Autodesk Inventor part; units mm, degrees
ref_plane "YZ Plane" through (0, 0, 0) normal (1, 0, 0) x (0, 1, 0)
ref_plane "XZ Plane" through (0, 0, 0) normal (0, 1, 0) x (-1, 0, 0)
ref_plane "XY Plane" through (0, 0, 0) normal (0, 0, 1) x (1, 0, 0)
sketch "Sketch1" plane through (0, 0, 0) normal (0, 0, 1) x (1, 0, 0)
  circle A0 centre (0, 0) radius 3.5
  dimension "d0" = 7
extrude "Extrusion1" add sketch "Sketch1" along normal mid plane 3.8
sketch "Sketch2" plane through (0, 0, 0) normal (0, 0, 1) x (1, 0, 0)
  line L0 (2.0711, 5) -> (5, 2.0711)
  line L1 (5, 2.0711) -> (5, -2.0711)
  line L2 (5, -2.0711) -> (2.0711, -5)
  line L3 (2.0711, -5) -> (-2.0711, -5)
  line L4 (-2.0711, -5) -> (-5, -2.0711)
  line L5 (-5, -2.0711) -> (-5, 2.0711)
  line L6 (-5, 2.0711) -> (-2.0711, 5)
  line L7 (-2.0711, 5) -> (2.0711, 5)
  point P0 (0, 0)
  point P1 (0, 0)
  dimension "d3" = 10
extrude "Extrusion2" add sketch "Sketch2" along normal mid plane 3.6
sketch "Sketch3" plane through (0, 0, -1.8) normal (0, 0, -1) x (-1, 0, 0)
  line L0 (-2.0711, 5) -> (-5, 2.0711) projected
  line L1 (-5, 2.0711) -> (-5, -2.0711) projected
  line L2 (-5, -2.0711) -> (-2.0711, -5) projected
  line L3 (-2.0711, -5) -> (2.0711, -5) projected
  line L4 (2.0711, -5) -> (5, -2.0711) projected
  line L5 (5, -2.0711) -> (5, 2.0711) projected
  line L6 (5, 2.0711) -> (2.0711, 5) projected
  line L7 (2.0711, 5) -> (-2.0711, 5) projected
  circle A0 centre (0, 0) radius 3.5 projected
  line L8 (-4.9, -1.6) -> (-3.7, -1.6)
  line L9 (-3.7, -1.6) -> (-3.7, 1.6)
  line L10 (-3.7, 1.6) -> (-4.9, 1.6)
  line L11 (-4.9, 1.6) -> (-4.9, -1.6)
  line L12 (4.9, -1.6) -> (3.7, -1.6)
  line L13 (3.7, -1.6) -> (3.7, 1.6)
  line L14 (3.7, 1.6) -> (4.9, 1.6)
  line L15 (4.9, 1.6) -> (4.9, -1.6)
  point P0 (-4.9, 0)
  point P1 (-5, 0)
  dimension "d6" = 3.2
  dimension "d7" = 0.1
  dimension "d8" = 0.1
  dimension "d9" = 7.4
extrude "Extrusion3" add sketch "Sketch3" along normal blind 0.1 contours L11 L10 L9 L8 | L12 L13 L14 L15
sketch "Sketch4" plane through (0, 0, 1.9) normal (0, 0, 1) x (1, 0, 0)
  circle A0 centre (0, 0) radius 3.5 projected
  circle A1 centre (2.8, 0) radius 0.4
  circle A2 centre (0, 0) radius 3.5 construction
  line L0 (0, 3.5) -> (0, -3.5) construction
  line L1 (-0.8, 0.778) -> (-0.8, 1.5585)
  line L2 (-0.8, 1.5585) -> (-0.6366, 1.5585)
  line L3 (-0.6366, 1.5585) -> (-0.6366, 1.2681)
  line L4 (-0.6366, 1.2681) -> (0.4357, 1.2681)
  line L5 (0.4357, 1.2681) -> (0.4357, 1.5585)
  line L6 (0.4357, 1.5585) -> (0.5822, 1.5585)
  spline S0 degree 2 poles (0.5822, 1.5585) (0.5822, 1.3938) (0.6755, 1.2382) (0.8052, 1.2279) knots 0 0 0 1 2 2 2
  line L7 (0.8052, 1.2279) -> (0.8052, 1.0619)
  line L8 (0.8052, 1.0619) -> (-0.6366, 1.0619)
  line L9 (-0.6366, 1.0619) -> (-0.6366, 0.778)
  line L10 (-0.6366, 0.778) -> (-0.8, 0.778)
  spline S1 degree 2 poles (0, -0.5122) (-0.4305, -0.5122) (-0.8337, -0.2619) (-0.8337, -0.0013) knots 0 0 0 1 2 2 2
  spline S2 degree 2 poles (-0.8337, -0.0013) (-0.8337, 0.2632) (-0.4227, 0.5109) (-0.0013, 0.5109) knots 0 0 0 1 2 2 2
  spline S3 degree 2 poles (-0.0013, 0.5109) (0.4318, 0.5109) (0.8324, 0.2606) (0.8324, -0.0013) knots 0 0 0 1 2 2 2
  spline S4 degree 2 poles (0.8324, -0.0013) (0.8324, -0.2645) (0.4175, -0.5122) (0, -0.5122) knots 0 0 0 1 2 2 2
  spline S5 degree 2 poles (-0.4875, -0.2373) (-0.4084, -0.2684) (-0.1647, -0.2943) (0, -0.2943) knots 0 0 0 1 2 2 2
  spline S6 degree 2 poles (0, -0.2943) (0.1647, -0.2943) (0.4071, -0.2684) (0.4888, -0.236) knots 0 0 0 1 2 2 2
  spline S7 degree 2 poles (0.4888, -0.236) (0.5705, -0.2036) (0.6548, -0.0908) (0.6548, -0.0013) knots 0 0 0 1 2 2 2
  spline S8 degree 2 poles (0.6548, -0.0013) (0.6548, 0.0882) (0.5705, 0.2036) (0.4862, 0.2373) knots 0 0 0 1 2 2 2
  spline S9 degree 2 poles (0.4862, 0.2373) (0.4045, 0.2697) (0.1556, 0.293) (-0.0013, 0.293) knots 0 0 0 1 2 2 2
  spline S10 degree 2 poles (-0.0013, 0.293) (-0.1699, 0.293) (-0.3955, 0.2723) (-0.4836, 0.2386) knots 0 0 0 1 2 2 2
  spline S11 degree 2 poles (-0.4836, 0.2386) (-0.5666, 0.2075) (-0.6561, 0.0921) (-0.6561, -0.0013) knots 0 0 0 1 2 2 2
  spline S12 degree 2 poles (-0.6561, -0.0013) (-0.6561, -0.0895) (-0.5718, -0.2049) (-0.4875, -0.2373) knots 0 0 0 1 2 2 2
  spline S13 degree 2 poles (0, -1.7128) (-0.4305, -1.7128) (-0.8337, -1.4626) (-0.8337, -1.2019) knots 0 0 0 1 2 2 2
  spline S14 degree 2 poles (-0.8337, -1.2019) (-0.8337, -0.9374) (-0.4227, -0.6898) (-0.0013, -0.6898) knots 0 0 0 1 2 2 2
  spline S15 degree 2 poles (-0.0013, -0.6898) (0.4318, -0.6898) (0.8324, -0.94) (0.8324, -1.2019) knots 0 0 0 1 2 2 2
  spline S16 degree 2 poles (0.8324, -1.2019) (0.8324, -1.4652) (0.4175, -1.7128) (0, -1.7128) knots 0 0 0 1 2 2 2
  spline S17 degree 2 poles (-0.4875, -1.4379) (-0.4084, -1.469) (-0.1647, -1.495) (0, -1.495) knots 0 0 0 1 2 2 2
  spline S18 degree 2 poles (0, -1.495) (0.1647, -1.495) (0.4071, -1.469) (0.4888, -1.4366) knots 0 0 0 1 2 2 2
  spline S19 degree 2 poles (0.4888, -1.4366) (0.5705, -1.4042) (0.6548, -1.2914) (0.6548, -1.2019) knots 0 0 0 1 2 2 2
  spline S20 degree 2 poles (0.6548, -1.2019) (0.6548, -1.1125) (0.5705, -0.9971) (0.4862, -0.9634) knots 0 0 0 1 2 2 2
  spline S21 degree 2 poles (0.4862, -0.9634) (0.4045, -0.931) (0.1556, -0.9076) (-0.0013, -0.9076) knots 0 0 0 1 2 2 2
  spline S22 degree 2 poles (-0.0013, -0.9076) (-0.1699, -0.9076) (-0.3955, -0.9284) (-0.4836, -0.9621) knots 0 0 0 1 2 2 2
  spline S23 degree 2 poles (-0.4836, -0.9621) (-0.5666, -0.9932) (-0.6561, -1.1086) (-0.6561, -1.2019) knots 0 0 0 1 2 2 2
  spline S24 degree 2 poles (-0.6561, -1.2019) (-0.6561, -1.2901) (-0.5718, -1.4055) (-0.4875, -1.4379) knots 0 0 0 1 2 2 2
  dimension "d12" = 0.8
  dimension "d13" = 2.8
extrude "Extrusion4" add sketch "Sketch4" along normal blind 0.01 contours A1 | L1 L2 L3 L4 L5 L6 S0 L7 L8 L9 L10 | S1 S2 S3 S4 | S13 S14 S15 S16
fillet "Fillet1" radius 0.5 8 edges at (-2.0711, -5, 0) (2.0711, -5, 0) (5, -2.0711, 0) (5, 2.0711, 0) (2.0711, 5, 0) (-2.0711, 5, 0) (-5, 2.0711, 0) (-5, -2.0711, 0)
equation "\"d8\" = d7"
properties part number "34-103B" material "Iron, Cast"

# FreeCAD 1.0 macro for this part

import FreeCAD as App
import Part
import Sketcher

V = App.Vector


def edges_at(feature, points):
    """Names of the edges that pass closest to the given points."""
    edges = feature.Shape.Edges
    near = lambda p: min(range(len(edges)), key=lambda i: edges[i].distToShape(Part.Vertex(*p))[0])
    return sorted({f"Edge{near(p) + 1}" for p in points})


def add_polygon(sketch, points):
    """Adds a closed chain of lines whose ends are joined by coincident constraints."""
    first, n = sketch.GeometryCount, len(points)
    for a, b in zip(points, points[1:] + points[:1]):
        sketch.addGeometry(Part.LineSegment(App.Vector(*a, 0), App.Vector(*b, 0)), False)
    for i in range(n):
        sketch.addConstraint(Sketcher.Constraint("Coincident", first + i, 2, first + (i + 1) % n, 1))

doc = App.newDocument("Part")
body = doc.addObject("PartDesign::Body", "Body")

sketch1 = doc.addObject("Sketcher::SketchObject", "Sketch")
body.addObject(sketch1)
sketch1.AttachmentSupport = (doc.XY_Plane, [""])
sketch1.MapMode = "FlatFace"
sketch1.addGeometry(Part.Circle(V(0, 0, 0), V(0, 0, 1), 3.5), False)
sketch1.addConstraint([
    Sketcher.Constraint("Coincident", 0, 3, -1, 1),
    Sketcher.Constraint("Diameter", 0, 7.0),
])
pad1 = doc.addObject("PartDesign::Pad", "Pad")
body.addObject(pad1)
pad1.Profile = sketch1
pad1.Length = 3.8
pad1.Midplane = True

sketch2 = doc.addObject("Sketcher::SketchObject", "Sketch001")
body.addObject(sketch2)
sketch2.AttachmentSupport = (doc.XY_Plane, [""])
sketch2.MapMode = "FlatFace"
add_polygon(sketch2, [(5, 2.1), (2.1, 5), (-2.1, 5), (-5, 2.1), (-5, -2.1), (-2.1, -5), (2.1, -5), (5, -2.1)])
sketch2.addConstraint([
    Sketcher.Constraint("Horizontal", 1),
    Sketcher.Constraint("Vertical", 3),
    Sketcher.Constraint("Horizontal", 5),
    Sketcher.Constraint("Vertical", 7),
    Sketcher.Constraint("Symmetric", 0, 2, 4, 2, -1, 1),
    Sketcher.Constraint("Symmetric", 2, 2, 6, 2, -1, 1),
    Sketcher.Constraint("Perpendicular", 0, 2),
    Sketcher.Constraint("Perpendicular", 2, 4),
    Sketcher.Constraint("Perpendicular", 4, 6),
    Sketcher.Constraint("Horizontal", 3, 2, 6, 2),
    Sketcher.Constraint("Vertical", 1, 2, 4, 2),
    Sketcher.Constraint("Equal", 5, 3),
    Sketcher.Constraint("DistanceY", 4, 2, 1, 2, 10.0),
    Sketcher.Constraint("Distance", 0, 4.142),
])
pad2 = doc.addObject("PartDesign::Pad", "Pad001")
body.addObject(pad2)
pad2.Profile = sketch2
pad2.Length = 3.6
pad2.Midplane = True

sketch3 = doc.addObject("Sketcher::SketchObject", "Sketch002")
body.addObject(sketch3)
sketch3.AttachmentSupport = (doc.XY_Plane, [""])
sketch3.MapMode = "FlatFace"
sketch3.AttachmentOffset = App.Placement(V(0, 0, -1.8), App.Rotation())
add_polygon(sketch3, [(4.9, 1.6), (4.9, -1.6), (3.7, -1.6), (3.7, 1.6)])
add_polygon(sketch3, [(-3.7, -1.6), (-4.9, -1.6), (-4.9, 1.6), (-3.7, 1.6)])
sketch3.addConstraint([
    Sketcher.Constraint("Vertical", 0),
    Sketcher.Constraint("Horizontal", 1),
    Sketcher.Constraint("Vertical", 2),
    Sketcher.Constraint("Horizontal", 3),
    Sketcher.Constraint("Horizontal", 4),
    Sketcher.Constraint("Vertical", 5),
    Sketcher.Constraint("Horizontal", 6),
    Sketcher.Constraint("Vertical", 7),
    Sketcher.Constraint("Symmetric", 3, 2, 4, 2, -1, 1),
    Sketcher.Constraint("Symmetric", 1, 2, 6, 2, -1, 1),
    Sketcher.Constraint("Horizontal", 1, 2, 4, 2),
    Sketcher.Constraint("DistanceY", 0, 2, 0, 1, 3.2),
    Sketcher.Constraint("DistanceX", 6, 2, 2, 2, 7.4),
    Sketcher.Constraint("DistanceX", 1, 2, 1, 1, 1.2),
])
pad3 = doc.addObject("PartDesign::Pad", "Pad002")
body.addObject(pad3)
pad3.Profile = sketch3
pad3.Length = 0.1
pad3.Reversed = True

sketch4 = doc.addObject("Sketcher::SketchObject", "Sketch003")
body.addObject(sketch4)
sketch4.AttachmentSupport = (doc.XY_Plane, [""])
sketch4.MapMode = "FlatFace"
sketch4.AttachmentOffset = App.Placement(V(0, 0, 1.9), App.Rotation())
sketch4.addGeometry([
    Part.Circle(V(2.8, 0, 0), V(0, 0, 1), 0.4),
    Part.LineSegment(V(-0.8, 1.5585, 0), V(-0.8, 0.778, 0)),
    Part.LineSegment(V(-0.8, 0.778, 0), V(-0.6366, 0.778, 0)),
    Part.LineSegment(V(-0.6366, 0.778, 0), V(-0.6366, 1.0619, 0)),
    Part.LineSegment(V(-0.6366, 1.0619, 0), V(0.8052, 1.0619, 0)),
    Part.LineSegment(V(0.8052, 1.0619, 0), V(0.8052, 1.2279, 0)),
    Part.BSplineCurve([V(0.5822, 1.5585, 0), V(0.5822, 1.3938, 0), V(0.6755, 1.2382, 0), V(0.8052, 1.2279, 0)], [3, 1, 3], [0, 1, 2], False, 2, [1, 1, 1, 1], False),
    Part.LineSegment(V(0.5822, 1.5585, 0), V(0.4357, 1.5585, 0)),
    Part.LineSegment(V(0.4357, 1.5585, 0), V(0.4357, 1.2681, 0)),
    Part.LineSegment(V(0.4357, 1.2681, 0), V(-0.6366, 1.2681, 0)),
    Part.LineSegment(V(-0.6366, 1.2681, 0), V(-0.6366, 1.5585, 0)),
    Part.LineSegment(V(-0.6366, 1.5585, 0), V(-0.8, 1.5585, 0)),
    Part.BSplineCurve([V(0, -0.5122, 0), V(-0.4305, -0.5122, 0), V(-0.8337, -0.2619, 0), V(-0.8337, -0.0013, 0)], [3, 1, 3], [0, 1, 2], False, 2, [1, 1, 1, 1], False),
    Part.BSplineCurve([V(0.8324, -0.0013, 0), V(0.8324, -0.2645, 0), V(0.4175, -0.5122, 0), V(0, -0.5122, 0)], [3, 1, 3], [0, 1, 2], False, 2, [1, 1, 1, 1], False),
    Part.BSplineCurve([V(-0.0013, 0.5109, 0), V(0.4318, 0.5109, 0), V(0.8324, 0.2606, 0), V(0.8324, -0.0013, 0)], [3, 1, 3], [0, 1, 2], False, 2, [1, 1, 1, 1], False),
    Part.BSplineCurve([V(-0.8337, -0.0013, 0), V(-0.8337, 0.2632, 0), V(-0.4227, 0.5109, 0), V(-0.0013, 0.5109, 0)], [3, 1, 3], [0, 1, 2], False, 2, [1, 1, 1, 1], False),
    Part.BSplineCurve([V(-0.4875, -0.2373, 0), V(-0.4084, -0.2684, 0), V(-0.1647, -0.2943, 0), V(0, -0.2943, 0)], [3, 1, 3], [0, 1, 2], False, 2, [1, 1, 1, 1], False),
    Part.BSplineCurve([V(-0.6561, -0.0013, 0), V(-0.6561, -0.0895, 0), V(-0.5718, -0.2049, 0), V(-0.4875, -0.2373, 0)], [3, 1, 3], [0, 1, 2], False, 2, [1, 1, 1, 1], False),
    Part.BSplineCurve([V(-0.4836, 0.2386, 0), V(-0.5666, 0.2075, 0), V(-0.6561, 0.0921, 0), V(-0.6561, -0.0013, 0)], [3, 1, 3], [0, 1, 2], False, 2, [1, 1, 1, 1], False),
    Part.BSplineCurve([V(-0.0013, 0.293, 0), V(-0.1699, 0.293, 0), V(-0.3955, 0.2723, 0), V(-0.4836, 0.2386, 0)], [3, 1, 3], [0, 1, 2], False, 2, [1, 1, 1, 1], False),
    Part.BSplineCurve([V(0.4862, 0.2373, 0), V(0.4045, 0.2697, 0), V(0.1556, 0.293, 0), V(-0.0013, 0.293, 0)], [3, 1, 3], [0, 1, 2], False, 2, [1, 1, 1, 1], False),
    Part.BSplineCurve([V(0.6548, -0.0013, 0), V(0.6548, 0.0882, 0), V(0.5705, 0.2036, 0), V(0.4862, 0.2373, 0)], [3, 1, 3], [0, 1, 2], False, 2, [1, 1, 1, 1], False),
    Part.BSplineCurve([V(0.4888, -0.236, 0), V(0.5705, -0.2036, 0), V(0.6548, -0.0908, 0), V(0.6548, -0.0013, 0)], [3, 1, 3], [0, 1, 2], False, 2, [1, 1, 1, 1], False),
    Part.BSplineCurve([V(0, -0.2943, 0), V(0.1647, -0.2943, 0), V(0.4071, -0.2684, 0), V(0.4888, -0.236, 0)], [3, 1, 3], [0, 1, 2], False, 2, [1, 1, 1, 1], False),
    Part.BSplineCurve([V(0, -1.7128, 0), V(-0.4305, -1.7128, 0), V(-0.8337, -1.4626, 0), V(-0.8337, -1.2019, 0)], [3, 1, 3], [0, 1, 2], False, 2, [1, 1, 1, 1], False),
    Part.BSplineCurve([V(0.8324, -1.2019, 0), V(0.8324, -1.4652, 0), V(0.4175, -1.7128, 0), V(0, -1.7128, 0)], [3, 1, 3], [0, 1, 2], False, 2, [1, 1, 1, 1], False),
    Part.BSplineCurve([V(-0.0013, -0.6898, 0), V(0.4318, -0.6898, 0), V(0.8324, -0.94, 0), V(0.8324, -1.2019, 0)], [3, 1, 3], [0, 1, 2], False, 2, [1, 1, 1, 1], False),
    Part.BSplineCurve([V(-0.8337, -1.2019, 0), V(-0.8337, -0.9374, 0), V(-0.4227, -0.6898, 0), V(-0.0013, -0.6898, 0)], [3, 1, 3], [0, 1, 2], False, 2, [1, 1, 1, 1], False),
    Part.BSplineCurve([V(-0.4875, -1.4379, 0), V(-0.4084, -1.469, 0), V(-0.1647, -1.495, 0), V(0, -1.495, 0)], [3, 1, 3], [0, 1, 2], False, 2, [1, 1, 1, 1], False),
    Part.BSplineCurve([V(-0.6561, -1.2019, 0), V(-0.6561, -1.2901, 0), V(-0.5718, -1.4055, 0), V(-0.4875, -1.4379, 0)], [3, 1, 3], [0, 1, 2], False, 2, [1, 1, 1, 1], False),
    Part.BSplineCurve([V(-0.4836, -0.9621, 0), V(-0.5666, -0.9932, 0), V(-0.6561, -1.1086, 0), V(-0.6561, -1.2019, 0)], [3, 1, 3], [0, 1, 2], False, 2, [1, 1, 1, 1], False),
    Part.BSplineCurve([V(-0.0013, -0.9076, 0), V(-0.1699, -0.9076, 0), V(-0.3955, -0.9284, 0), V(-0.4836, -0.9621, 0)], [3, 1, 3], [0, 1, 2], False, 2, [1, 1, 1, 1], False),
    Part.BSplineCurve([V(0.4862, -0.9634, 0), V(0.4045, -0.931, 0), V(0.1556, -0.9076, 0), V(-0.0013, -0.9076, 0)], [3, 1, 3], [0, 1, 2], False, 2, [1, 1, 1, 1], False),
    Part.BSplineCurve([V(0.6548, -1.2019, 0), V(0.6548, -1.1125, 0), V(0.5705, -0.9971, 0), V(0.4862, -0.9634, 0)], [3, 1, 3], [0, 1, 2], False, 2, [1, 1, 1, 1], False),
    Part.BSplineCurve([V(0.4888, -1.4366, 0), V(0.5705, -1.4042, 0), V(0.6548, -1.2914, 0), V(0.6548, -1.2019, 0)], [3, 1, 3], [0, 1, 2], False, 2, [1, 1, 1, 1], False),
    Part.BSplineCurve([V(0, -1.495, 0), V(0.1647, -1.495, 0), V(0.4071, -1.469, 0), V(0.4888, -1.4366, 0)], [3, 1, 3], [0, 1, 2], False, 2, [1, 1, 1, 1], False),
], False)
sketch4.addConstraint([
    Sketcher.Constraint("Block", 6),
    Sketcher.Constraint("Block", 12),
    Sketcher.Constraint("Block", 13),
    Sketcher.Constraint("Block", 14),
    Sketcher.Constraint("Block", 15),
    Sketcher.Constraint("Block", 16),
    Sketcher.Constraint("Block", 17),
    Sketcher.Constraint("Block", 18),
    Sketcher.Constraint("Block", 19),
    Sketcher.Constraint("Block", 20),
    Sketcher.Constraint("Block", 21),
    Sketcher.Constraint("Block", 22),
    Sketcher.Constraint("Block", 23),
    Sketcher.Constraint("Block", 24),
    Sketcher.Constraint("Block", 25),
    Sketcher.Constraint("Block", 26),
    Sketcher.Constraint("Block", 27),
    Sketcher.Constraint("Block", 28),
    Sketcher.Constraint("Block", 29),
    Sketcher.Constraint("Block", 30),
    Sketcher.Constraint("Block", 31),
    Sketcher.Constraint("Block", 32),
    Sketcher.Constraint("Block", 33),
    Sketcher.Constraint("Block", 34),
    Sketcher.Constraint("Block", 35),
    Sketcher.Constraint("Coincident", 1, 2, 2, 1),
    Sketcher.Constraint("Coincident", 2, 2, 3, 1),
    Sketcher.Constraint("Coincident", 3, 2, 4, 1),
    Sketcher.Constraint("Coincident", 4, 2, 5, 1),
    Sketcher.Constraint("Coincident", 5, 2, 6, 2),
    Sketcher.Constraint("Coincident", 6, 1, 7, 1),
    Sketcher.Constraint("Coincident", 7, 2, 8, 1),
    Sketcher.Constraint("Coincident", 8, 2, 9, 1),
    Sketcher.Constraint("Coincident", 9, 2, 10, 1),
    Sketcher.Constraint("Coincident", 10, 2, 11, 1),
    Sketcher.Constraint("Coincident", 11, 2, 1, 1),
    Sketcher.Constraint("Vertical", 1),
    Sketcher.Constraint("Horizontal", 2),
    Sketcher.Constraint("Vertical", 3),
    Sketcher.Constraint("Horizontal", 4),
    Sketcher.Constraint("Vertical", 5),
    Sketcher.Constraint("Horizontal", 7),
    Sketcher.Constraint("Vertical", 8),
    Sketcher.Constraint("Horizontal", 9),
    Sketcher.Constraint("Vertical", 10),
    Sketcher.Constraint("Horizontal", 11),
    Sketcher.Constraint("PointOnObject", 0, 3, -1),
    Sketcher.Constraint("Horizontal", 7, 2, 10, 2),
    Sketcher.Constraint("Vertical", 3, 2, 9, 2),
    Sketcher.Constraint("Diameter", 0, 0.8),
    Sketcher.Constraint("DistanceX", -1, 1, 0, 3, 2.8),
    Sketcher.Constraint("DistanceX", 1, 2, -1, 1, 0.8),
    Sketcher.Constraint("DistanceY", 3, 1, 3, 2, 0.284),
    Sketcher.Constraint("DistanceY", 5, 1, 5, 2, 0.166),
    Sketcher.Constraint("DistanceY", 2, 2, 8, 2, 0.49),
    Sketcher.Constraint("DistanceX", 2, 1, 2, 2, 0.1634),
    Sketcher.Constraint("DistanceX", 7, 2, 7, 1, 0.1465),
])
pad4 = doc.addObject("PartDesign::Pad", "Pad003")
body.addObject(pad4)
pad4.Profile = sketch4
pad4.Length = 0.01
doc.recompute()

fillet = doc.addObject("PartDesign::Fillet", "Fillet")
body.addObject(fillet)
fillet.Base = (pad4, edges_at(pad4, [
    (-2.071, -5, 0),
    (2.071, -5, 0),
    (5, -2.071, 0),
    (5, 2.071, 0),
    (2.071, 5, 0),
    (-2.071, 5, 0),
    (-5, 2.071, 0),
    (-5, -2.071, 0),
]))
fillet.Radius = 0.5

doc.recompute()
